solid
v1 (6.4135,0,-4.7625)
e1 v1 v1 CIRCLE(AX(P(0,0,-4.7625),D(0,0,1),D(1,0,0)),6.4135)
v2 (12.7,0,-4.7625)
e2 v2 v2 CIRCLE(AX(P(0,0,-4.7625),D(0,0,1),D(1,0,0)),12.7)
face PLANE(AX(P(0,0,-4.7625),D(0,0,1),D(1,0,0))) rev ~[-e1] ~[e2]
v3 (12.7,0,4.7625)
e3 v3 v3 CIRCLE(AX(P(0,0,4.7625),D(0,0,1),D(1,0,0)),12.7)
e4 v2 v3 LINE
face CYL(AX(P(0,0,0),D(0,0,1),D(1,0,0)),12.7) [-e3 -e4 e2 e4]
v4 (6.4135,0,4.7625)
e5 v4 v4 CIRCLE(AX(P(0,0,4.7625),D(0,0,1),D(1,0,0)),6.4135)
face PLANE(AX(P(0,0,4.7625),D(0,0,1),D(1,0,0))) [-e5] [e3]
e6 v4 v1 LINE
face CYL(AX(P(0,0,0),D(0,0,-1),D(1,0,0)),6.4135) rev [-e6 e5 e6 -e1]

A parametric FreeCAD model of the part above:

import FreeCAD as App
import Part
import Sketcher

V = App.Vector
Q = App.Units.Quantity

doc = App.newDocument("Part")
body = doc.addObject("PartDesign::Body", "Body")

# Sketch on XY plane
sketch1 = body.newObject("Sketcher::SketchObject", "Sketch")
sketch1.AttachmentSupport = (doc.getObject("XY_Plane"), [""])
sketch1.MapMode = "FlatFace"
sketch1.addGeometry([
    Part.Circle(V(0, 0, 0), V(0, 0, 1), 12.7),
    Part.Circle(V(0, 0, 0), V(0, 0, 1), 6.4135),
], False)
sketch1.addConstraint([
    Sketcher.Constraint("Coincident", 0, 3, -1, 1),
    Sketcher.Constraint("Coincident", 1, 3, -1, 1),
    Sketcher.Constraint("Diameter", 0, Q("1 in")),
    Sketcher.Constraint("Diameter", 1, Q("0.505 in")),
])
pad1 = body.newObject("PartDesign::Pad", "Pad")
pad1.Profile = sketch1
pad1.Length = Q("0.375 in")
pad1.Midplane = True

doc.recompute()
